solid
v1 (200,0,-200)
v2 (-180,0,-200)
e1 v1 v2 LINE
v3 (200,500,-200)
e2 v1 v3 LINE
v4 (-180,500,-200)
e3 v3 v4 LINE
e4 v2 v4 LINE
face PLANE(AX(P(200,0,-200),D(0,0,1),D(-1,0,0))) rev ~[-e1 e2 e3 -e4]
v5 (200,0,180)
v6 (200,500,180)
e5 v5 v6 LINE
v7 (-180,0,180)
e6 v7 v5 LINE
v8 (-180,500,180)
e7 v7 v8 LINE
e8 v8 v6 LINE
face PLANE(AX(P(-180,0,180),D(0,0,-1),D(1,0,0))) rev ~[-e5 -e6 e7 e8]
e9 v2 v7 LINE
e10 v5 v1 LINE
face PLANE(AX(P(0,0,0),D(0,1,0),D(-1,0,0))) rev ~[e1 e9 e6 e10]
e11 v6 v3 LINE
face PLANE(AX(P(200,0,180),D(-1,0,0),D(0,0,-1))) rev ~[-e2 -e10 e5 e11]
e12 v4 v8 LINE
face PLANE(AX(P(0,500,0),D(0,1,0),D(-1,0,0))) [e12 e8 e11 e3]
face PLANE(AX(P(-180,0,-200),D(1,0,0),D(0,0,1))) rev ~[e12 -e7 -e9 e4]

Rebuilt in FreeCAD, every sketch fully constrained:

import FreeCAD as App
import Part
import Sketcher


def add_polygon(sketch, points):
    """Adds a closed chain of lines whose ends are joined by coincident constraints."""
    first, n = sketch.GeometryCount, len(points)
    for a, b in zip(points, points[1:] + points[:1]):
        sketch.addGeometry(Part.LineSegment(App.Vector(*a, 0), App.Vector(*b, 0)), False)
    for i in range(n):
        sketch.addConstraint(Sketcher.Constraint("Coincident", first + i, 2, first + (i + 1) % n, 1))

doc = App.newDocument("Part")
body = doc.addObject("PartDesign::Body", "Body")

# Sketch on XZ plane
sketch1 = body.newObject("Sketcher::SketchObject", "Sketch")
sketch1.AttachmentSupport = (doc.getObject("XZ_Plane"), [""])
sketch1.MapMode = "FlatFace"
add_polygon(sketch1, [(-180, -200), (-180, 180), (200, 180), (200, -200)])  # lines 0-3
sketch1.addConstraint([
    Sketcher.Constraint("Vertical", 0),
    Sketcher.Constraint("Horizontal", 1),
    Sketcher.Constraint("Vertical", 2),
    Sketcher.Constraint("Horizontal", 3),
    Sketcher.Constraint("Equal", 3, 0),
    Sketcher.Constraint("DistanceX", 1, 1, 1, 2, 380.0),
    Sketcher.Constraint("DistanceX", 0, 2, -1, 1, 180.0),
    Sketcher.Constraint("DistanceY", -1, 1, 0, 2, 180.0),
])
pad1 = body.newObject("PartDesign::Pad", "Pad")
pad1.Profile = sketch1
pad1.Length = 500
pad1.Reversed = True

doc.recompute()
